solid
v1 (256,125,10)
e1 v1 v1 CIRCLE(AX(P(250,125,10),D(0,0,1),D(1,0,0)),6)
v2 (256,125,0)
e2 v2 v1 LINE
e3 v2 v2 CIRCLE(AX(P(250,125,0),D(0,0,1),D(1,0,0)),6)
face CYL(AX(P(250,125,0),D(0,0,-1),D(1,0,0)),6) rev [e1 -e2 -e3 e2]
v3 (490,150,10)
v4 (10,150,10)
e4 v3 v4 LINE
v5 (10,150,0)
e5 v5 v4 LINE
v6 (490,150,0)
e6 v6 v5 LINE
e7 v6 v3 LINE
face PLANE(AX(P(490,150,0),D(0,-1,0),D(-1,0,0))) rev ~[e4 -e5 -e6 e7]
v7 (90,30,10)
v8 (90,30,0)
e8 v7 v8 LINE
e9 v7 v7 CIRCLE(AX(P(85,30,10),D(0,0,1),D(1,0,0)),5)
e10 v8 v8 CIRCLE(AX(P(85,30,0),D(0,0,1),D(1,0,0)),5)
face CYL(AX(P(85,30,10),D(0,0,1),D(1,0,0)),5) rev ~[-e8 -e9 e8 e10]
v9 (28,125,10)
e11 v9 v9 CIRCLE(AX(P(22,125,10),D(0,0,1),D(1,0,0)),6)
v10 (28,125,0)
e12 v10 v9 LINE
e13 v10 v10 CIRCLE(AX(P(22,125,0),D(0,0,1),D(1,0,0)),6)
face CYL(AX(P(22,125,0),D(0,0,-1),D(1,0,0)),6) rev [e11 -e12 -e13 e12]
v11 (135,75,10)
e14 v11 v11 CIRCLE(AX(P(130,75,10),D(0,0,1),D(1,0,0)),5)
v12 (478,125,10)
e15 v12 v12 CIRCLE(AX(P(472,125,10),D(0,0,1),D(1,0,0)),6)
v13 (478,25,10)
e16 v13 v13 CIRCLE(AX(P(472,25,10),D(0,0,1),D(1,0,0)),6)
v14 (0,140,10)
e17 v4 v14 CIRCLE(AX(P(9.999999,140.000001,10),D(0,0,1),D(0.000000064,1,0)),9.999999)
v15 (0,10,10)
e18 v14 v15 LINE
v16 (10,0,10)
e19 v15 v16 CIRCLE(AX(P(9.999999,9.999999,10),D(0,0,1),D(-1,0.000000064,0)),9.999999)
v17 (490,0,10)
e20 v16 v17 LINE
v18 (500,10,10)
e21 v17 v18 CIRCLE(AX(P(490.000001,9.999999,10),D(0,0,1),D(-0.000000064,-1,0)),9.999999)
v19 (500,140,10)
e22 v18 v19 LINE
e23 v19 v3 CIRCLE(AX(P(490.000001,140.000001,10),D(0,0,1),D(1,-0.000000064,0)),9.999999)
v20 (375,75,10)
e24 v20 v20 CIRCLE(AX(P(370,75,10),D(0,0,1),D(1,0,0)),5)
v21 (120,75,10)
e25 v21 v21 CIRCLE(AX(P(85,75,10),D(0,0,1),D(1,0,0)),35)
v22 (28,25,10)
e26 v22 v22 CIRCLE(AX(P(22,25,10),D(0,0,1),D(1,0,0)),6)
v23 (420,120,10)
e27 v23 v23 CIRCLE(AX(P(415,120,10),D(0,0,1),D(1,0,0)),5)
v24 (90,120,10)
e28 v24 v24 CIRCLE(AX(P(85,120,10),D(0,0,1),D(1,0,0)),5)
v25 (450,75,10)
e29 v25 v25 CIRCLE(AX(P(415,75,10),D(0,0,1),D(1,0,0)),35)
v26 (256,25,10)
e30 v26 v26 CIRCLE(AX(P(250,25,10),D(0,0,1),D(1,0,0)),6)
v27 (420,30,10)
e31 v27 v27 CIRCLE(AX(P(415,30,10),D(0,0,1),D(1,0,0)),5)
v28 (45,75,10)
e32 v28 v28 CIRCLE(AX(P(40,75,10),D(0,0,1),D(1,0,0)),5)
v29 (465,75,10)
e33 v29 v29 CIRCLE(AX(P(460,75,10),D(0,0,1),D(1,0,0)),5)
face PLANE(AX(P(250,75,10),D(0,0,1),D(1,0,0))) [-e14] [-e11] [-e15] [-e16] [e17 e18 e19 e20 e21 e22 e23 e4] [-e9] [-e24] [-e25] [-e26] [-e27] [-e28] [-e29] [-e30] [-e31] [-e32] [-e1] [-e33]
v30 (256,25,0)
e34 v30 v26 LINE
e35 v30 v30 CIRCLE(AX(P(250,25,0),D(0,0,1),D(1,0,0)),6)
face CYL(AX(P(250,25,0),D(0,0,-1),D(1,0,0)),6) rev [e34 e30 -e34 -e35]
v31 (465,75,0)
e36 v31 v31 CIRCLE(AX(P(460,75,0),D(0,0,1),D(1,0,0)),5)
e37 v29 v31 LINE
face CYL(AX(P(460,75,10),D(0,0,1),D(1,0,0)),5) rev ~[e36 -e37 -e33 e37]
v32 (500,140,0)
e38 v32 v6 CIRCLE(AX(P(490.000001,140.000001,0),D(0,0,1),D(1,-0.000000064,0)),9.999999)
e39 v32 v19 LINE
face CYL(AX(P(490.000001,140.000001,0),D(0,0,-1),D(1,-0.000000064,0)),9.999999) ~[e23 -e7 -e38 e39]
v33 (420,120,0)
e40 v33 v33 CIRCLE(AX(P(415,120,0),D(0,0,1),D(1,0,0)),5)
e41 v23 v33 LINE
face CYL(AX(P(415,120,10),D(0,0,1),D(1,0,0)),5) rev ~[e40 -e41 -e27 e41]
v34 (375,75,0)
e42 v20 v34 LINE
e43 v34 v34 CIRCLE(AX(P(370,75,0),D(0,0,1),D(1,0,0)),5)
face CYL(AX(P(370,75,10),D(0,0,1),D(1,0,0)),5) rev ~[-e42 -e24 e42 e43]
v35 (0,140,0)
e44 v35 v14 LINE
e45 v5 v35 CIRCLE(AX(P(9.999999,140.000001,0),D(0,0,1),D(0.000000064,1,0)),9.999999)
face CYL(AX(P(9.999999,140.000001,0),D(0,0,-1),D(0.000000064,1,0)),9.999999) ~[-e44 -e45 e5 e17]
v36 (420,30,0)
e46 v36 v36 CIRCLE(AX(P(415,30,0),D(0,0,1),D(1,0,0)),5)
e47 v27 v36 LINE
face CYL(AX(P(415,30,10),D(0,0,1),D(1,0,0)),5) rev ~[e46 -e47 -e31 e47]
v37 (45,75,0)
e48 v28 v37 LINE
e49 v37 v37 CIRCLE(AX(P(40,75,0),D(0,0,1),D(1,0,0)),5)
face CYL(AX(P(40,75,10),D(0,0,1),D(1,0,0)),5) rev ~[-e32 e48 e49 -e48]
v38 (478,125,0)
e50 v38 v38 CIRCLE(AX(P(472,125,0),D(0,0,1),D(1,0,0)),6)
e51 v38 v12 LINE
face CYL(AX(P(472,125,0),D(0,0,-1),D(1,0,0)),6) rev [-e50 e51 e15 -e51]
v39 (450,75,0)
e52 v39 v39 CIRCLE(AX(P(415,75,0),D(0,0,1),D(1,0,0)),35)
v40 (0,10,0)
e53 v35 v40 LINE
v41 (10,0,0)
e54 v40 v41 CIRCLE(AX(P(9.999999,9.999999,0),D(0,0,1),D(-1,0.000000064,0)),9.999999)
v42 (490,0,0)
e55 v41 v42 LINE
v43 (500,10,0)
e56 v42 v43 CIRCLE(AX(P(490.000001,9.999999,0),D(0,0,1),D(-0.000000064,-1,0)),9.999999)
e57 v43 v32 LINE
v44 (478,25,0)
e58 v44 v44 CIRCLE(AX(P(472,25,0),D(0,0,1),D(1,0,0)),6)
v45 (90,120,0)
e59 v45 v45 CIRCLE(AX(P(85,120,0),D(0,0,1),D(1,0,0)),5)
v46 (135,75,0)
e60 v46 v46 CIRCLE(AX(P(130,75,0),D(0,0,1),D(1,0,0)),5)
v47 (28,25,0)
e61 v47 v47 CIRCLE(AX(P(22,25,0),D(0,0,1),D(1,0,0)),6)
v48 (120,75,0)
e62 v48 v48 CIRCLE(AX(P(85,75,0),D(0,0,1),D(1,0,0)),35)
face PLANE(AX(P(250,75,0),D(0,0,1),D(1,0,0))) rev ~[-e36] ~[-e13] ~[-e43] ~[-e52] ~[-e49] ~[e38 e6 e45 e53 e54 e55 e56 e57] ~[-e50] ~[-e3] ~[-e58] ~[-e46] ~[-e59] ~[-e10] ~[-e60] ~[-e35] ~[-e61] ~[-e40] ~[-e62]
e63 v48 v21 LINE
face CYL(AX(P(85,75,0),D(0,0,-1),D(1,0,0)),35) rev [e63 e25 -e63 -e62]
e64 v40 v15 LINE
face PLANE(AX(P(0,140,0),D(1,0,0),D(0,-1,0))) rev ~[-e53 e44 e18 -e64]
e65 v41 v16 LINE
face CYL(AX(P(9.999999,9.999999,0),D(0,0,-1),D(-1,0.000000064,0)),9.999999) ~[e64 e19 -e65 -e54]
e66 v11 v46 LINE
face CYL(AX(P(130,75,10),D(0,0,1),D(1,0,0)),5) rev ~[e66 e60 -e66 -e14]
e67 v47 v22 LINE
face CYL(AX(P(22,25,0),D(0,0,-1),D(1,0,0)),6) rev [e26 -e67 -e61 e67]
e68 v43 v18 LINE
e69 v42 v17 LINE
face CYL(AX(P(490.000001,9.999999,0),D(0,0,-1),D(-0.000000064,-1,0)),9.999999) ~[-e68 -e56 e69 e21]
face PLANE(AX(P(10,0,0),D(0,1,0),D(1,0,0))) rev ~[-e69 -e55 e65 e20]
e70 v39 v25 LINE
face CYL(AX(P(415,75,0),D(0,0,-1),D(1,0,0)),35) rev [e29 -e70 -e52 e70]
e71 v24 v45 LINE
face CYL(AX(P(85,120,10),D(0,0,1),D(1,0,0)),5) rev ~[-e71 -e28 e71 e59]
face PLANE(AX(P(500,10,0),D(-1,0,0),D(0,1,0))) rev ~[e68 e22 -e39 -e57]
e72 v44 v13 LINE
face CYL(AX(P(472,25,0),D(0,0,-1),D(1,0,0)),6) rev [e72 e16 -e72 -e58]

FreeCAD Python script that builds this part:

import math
import FreeCAD as App
import Part
import Sketcher

V = App.Vector
Q = App.Units.Quantity

doc = App.newDocument("Part")
body = doc.addObject("PartDesign::Body", "Body")

sketch1 = doc.addObject("Sketcher::SketchObject", "Sketch")
body.addObject(sketch1)
sketch1.AttachmentSupport = (doc.XY_Plane, [""])
sketch1.MapMode = "FlatFace"
sketch1.addGeometry([
    Part.ArcOfCircle(Part.Circle(V(9.999999, 9.999999, 0), V(0, 0, 1), 9.999999), math.radians(179.999996), math.radians(270.000004)),
    Part.LineSegment(V(10, 0, 0), V(490, 0, 0)),
    Part.ArcOfCircle(Part.Circle(V(490.000001, 9.999999, 0), V(0, 0, 1), 9.999999), math.radians(-90.000004), math.radians(0.000004)),
    Part.LineSegment(V(500, 10, 0), V(500, 140, 0)),
    Part.ArcOfCircle(Part.Circle(V(490.000001, 140.000001, 0), V(0, 0, 1), 9.999999), math.radians(-0.000004), math.radians(90.000004)),
    Part.LineSegment(V(490, 150, 0), V(10, 150, 0)),
    Part.ArcOfCircle(Part.Circle(V(9.999999, 140.000001, 0), V(0, 0, 1), 9.999999), math.radians(89.999996), math.radians(180.000004)),
    Part.LineSegment(V(0, 140, 0), V(0, 10, 0)),
    Part.Circle(V(22, 25, 0), V(0, 0, 1), 6),
    Part.Circle(V(250, 25, 0), V(0, 0, 1), 6),
    Part.Circle(V(472, 25, 0), V(0, 0, 1), 6),
    Part.Circle(V(85, 75, 0), V(0, 0, 1), 35),
    Part.Circle(V(22, 125, 0), V(0, 0, 1), 6),
    Part.Circle(V(415, 75, 0), V(0, 0, 1), 35),
    Part.Circle(V(250, 125, 0), V(0, 0, 1), 6),
    Part.Circle(V(472, 125, 0), V(0, 0, 1), 6),
], False)
sketch1.addConstraint([
    Sketcher.Constraint("Tangent", 0, 2, 1, 1),
    Sketcher.Constraint("Tangent", 1, 2, 2, 1),
    Sketcher.Constraint("Tangent", 2, 2, 3, 1),
    Sketcher.Constraint("Tangent", 3, 2, 4, 1),
    Sketcher.Constraint("Tangent", 4, 2, 5, 1),
    Sketcher.Constraint("Tangent", 5, 2, 6, 1),
    Sketcher.Constraint("Tangent", 6, 2, 7, 1),
    Sketcher.Constraint("Tangent", 7, 2, 0, 1),
    Sketcher.Constraint("Horizontal", 1),
    Sketcher.Constraint("Vertical", 3),
    Sketcher.Constraint("Horizontal", 5),
    Sketcher.Constraint("Vertical", 7),
    Sketcher.Constraint("Equal", 0, 2),
    Sketcher.Constraint("Equal", 2, 4),
    Sketcher.Constraint("Equal", 4, 6),
    Sketcher.Constraint("Equal", 8, 9),
    Sketcher.Constraint("Equal", 9, 10),
    Sketcher.Constraint("Equal", 10, 12),
    Sketcher.Constraint("Equal", 11, 13),
    Sketcher.Constraint("Equal", 12, 14),
    Sketcher.Constraint("Equal", 14, 15),
    Sketcher.Constraint("PointOnObject", 0, 2, -1),
    Sketcher.Constraint("PointOnObject", 6, 2, -2),
    Sketcher.Constraint("Horizontal", 8, 3, 9, 3),
    Sketcher.Constraint("Horizontal", 9, 3, 10, 3),
    Sketcher.Constraint("Horizontal", 11, 3, 13, 3),
    Sketcher.Constraint("Horizontal", 12, 3, 14, 3),
    Sketcher.Constraint("Horizontal", 14, 3, 15, 3),
    Sketcher.Constraint("Vertical", 8, 3, 12, 3),
    Sketcher.Constraint("Vertical", 9, 3, 14, 3),
    Sketcher.Constraint("Vertical", 10, 3, 15, 3),
    Sketcher.Constraint("Diameter", 8, Q("12 mm")),
    Sketcher.Constraint("Diameter", 11, Q("70 mm")),
    Sketcher.Constraint("Radius", 0, Q("9.999999 mm")),
    Sketcher.Constraint("DistanceX", 1, 1, 1, 2, Q("480 mm")),
    Sketcher.Constraint("DistanceY", 3, 1, 3, 2, Q("130 mm")),
    Sketcher.Constraint("DistanceX", -1, 1, 8, 3, Q("22 mm")),
    Sketcher.Constraint("DistanceY", -1, 1, 8, 3, Q("25 mm")),
    Sketcher.Constraint("DistanceX", -1, 1, 9, 3, Q("250 mm")),
    Sketcher.Constraint("DistanceX", -1, 1, 10, 3, Q("472 mm")),
    Sketcher.Constraint("DistanceX", -1, 1, 11, 3, Q("85 mm")),
    Sketcher.Constraint("DistanceY", -1, 1, 11, 3, Q("75 mm")),
    Sketcher.Constraint("DistanceY", -1, 1, 12, 3, Q("125 mm")),
    Sketcher.Constraint("DistanceX", -1, 1, 13, 3, Q("415 mm")),
])
pad1 = doc.addObject("PartDesign::Pad", "Pad")
body.addObject(pad1)
pad1.Profile = sketch1
pad1.Length = 10

sketch2 = doc.addObject("Sketcher::SketchObject", "Sketch001")
body.addObject(sketch2)
sketch2.AttachmentSupport = (doc.XY_Plane, [""])
sketch2.MapMode = "FlatFace"
sketch2.AttachmentOffset = App.Placement(V(0, 0, 10), App.Rotation())
sketch2.addGeometry([
    Part.Circle(V(85, 120, 0), V(0, 0, 1), 5),
    Part.Circle(V(415, 120, 0), V(0, 0, 1), 5),
    Part.Circle(V(40, 75, 0), V(0, 0, 1), 5),
    Part.Circle(V(85, 30, 0), V(0, 0, 1), 5),
    Part.Circle(V(130, 75, 0), V(0, 0, 1), 5),
    Part.Circle(V(370, 75, 0), V(0, 0, 1), 5),
    Part.Circle(V(415, 30, 0), V(0, 0, 1), 5),
    Part.Circle(V(460, 75, 0), V(0, 0, 1), 5),
], False)
sketch2.addConstraint([
    Sketcher.Constraint("Equal", 0, 1),
    Sketcher.Constraint("Equal", 1, 2),
    Sketcher.Constraint("Equal", 2, 3),
    Sketcher.Constraint("Equal", 3, 4),
    Sketcher.Constraint("Equal", 4, 5),
    Sketcher.Constraint("Equal", 5, 6),
    Sketcher.Constraint("Equal", 6, 7),
    Sketcher.Constraint("Horizontal", 0, 3, 1, 3),
    Sketcher.Constraint("Horizontal", 2, 3, 4, 3),
    Sketcher.Constraint("Horizontal", 4, 3, 5, 3),
    Sketcher.Constraint("Horizontal", 3, 3, 6, 3),
    Sketcher.Constraint("Horizontal", 5, 3, 7, 3),
    Sketcher.Constraint("Vertical", 0, 3, 3, 3),
    Sketcher.Constraint("Vertical", 1, 3, 6, 3),
    Sketcher.Constraint("Diameter", 0, Q("10 mm")),
    Sketcher.Constraint("DistanceX", -1, 1, 0, 3, Q("85 mm")),
    Sketcher.Constraint("DistanceY", -1, 1, 0, 3, Q("120 mm")),
    Sketcher.Constraint("DistanceX", -1, 1, 1, 3, Q("415 mm")),
    Sketcher.Constraint("DistanceX", -1, 1, 2, 3, Q("40 mm")),
    Sketcher.Constraint("DistanceY", -1, 1, 2, 3, Q("75 mm")),
    Sketcher.Constraint("DistanceY", -1, 1, 3, 3, Q("30 mm")),
    Sketcher.Constraint("DistanceX", -1, 1, 4, 3, Q("130 mm")),
    Sketcher.Constraint("DistanceX", -1, 1, 5, 3, Q("370 mm")),
    Sketcher.Constraint("DistanceX", -1, 1, 7, 3, Q("460 mm")),
])
pocket1 = doc.addObject("PartDesign::Pocket", "Pocket")
body.addObject(pocket1)
pocket1.Profile = sketch2
pocket1.Length = 25

doc.recompute()
